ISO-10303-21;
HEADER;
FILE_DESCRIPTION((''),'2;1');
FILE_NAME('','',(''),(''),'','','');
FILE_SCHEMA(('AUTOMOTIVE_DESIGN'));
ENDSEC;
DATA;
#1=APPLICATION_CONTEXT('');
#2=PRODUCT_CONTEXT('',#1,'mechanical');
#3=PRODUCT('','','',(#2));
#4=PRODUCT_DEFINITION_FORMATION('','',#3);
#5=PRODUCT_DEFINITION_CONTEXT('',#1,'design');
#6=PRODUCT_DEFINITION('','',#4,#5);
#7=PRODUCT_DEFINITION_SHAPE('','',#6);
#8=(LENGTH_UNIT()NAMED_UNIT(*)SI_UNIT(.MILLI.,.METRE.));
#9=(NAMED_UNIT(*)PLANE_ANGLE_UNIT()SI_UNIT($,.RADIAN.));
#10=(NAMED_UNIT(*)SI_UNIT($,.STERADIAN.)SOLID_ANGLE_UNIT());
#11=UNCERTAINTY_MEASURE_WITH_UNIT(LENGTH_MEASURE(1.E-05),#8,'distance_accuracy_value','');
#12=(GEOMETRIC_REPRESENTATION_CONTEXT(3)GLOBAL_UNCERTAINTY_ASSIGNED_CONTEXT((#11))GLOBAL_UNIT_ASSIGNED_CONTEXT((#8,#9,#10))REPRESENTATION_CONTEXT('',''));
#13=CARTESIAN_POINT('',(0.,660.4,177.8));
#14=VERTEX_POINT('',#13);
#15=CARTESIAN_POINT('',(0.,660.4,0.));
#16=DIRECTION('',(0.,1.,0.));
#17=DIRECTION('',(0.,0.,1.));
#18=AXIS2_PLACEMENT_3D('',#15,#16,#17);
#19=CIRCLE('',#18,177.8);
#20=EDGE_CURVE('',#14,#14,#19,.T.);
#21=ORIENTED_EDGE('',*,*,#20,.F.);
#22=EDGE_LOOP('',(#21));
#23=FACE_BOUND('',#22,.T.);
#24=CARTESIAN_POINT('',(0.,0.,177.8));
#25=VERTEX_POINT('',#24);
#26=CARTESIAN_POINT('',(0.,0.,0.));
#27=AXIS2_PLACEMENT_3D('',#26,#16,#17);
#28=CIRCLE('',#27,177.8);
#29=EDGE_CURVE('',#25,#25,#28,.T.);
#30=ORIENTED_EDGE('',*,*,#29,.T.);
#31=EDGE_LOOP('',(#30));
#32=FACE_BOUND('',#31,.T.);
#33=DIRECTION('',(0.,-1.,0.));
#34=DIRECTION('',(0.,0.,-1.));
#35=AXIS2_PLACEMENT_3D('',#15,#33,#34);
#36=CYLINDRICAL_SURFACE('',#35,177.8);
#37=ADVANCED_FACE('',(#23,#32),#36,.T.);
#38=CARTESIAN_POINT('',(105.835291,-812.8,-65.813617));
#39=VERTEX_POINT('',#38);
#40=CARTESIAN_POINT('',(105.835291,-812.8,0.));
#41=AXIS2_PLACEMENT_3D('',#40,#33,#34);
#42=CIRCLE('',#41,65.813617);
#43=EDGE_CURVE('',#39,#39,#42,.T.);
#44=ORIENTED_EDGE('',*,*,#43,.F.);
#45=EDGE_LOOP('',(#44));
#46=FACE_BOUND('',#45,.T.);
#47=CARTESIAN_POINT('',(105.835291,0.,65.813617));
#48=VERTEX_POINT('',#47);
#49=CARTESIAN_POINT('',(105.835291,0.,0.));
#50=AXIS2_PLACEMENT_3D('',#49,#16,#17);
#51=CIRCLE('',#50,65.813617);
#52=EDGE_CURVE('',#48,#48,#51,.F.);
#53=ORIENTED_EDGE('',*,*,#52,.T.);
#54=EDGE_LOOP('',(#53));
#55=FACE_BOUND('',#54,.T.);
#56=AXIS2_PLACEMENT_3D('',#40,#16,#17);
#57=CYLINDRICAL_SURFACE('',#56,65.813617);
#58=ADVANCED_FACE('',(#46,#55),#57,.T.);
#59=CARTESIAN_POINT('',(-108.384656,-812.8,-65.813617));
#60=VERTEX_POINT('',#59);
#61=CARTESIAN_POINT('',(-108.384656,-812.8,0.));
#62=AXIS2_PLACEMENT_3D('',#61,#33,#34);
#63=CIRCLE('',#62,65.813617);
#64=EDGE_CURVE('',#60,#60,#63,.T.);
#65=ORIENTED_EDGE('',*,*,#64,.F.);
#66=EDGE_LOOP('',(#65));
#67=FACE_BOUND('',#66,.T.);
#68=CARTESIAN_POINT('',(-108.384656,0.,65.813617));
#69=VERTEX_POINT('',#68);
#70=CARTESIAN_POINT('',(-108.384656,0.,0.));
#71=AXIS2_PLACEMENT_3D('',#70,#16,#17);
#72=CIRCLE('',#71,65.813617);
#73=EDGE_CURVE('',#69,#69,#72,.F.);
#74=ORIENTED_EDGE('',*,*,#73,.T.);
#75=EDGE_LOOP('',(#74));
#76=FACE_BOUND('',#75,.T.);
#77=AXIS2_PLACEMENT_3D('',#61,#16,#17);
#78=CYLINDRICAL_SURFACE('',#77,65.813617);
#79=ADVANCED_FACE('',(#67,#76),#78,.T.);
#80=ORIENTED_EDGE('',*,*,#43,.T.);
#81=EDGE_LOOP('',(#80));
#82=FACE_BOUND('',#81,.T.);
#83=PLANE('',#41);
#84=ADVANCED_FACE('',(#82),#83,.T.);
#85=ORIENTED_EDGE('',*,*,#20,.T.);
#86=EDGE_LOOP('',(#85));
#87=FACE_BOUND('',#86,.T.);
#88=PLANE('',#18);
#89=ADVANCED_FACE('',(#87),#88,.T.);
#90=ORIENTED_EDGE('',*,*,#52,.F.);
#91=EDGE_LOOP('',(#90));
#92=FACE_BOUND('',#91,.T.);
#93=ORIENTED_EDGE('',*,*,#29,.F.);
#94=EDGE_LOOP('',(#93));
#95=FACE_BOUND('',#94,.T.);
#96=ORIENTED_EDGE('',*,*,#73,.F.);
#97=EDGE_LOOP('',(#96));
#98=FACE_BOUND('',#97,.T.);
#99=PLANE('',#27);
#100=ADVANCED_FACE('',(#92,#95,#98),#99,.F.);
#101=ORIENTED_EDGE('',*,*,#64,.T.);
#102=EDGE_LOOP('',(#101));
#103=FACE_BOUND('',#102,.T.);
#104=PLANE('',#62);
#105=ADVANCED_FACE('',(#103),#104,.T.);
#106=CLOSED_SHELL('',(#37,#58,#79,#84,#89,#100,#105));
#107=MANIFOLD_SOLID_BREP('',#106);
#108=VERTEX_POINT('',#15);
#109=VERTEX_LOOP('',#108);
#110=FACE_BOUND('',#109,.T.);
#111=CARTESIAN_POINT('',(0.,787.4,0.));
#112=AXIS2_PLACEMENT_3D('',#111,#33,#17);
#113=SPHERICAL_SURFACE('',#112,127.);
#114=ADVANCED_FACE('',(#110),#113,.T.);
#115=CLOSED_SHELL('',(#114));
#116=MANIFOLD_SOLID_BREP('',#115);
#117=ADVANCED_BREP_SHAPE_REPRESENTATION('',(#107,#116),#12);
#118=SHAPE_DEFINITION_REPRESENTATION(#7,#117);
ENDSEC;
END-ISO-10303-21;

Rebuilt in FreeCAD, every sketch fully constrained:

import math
import FreeCAD as App
import Part
import Sketcher
Q = App.Units.Quantity

doc = App.newDocument("Part")
body = doc.addObject("PartDesign::Body", "Body")

sketch1 = doc.addObject("Sketcher::SketchObject", "Sketch")
body.addObject(sketch1)
sketch1.AttachmentSupport = (doc.XZ_Plane, [""])
sketch1.MapMode = "FlatFace"
sketch1.addGeometry(Part.Circle(App.Vector(0, 0, 0), App.Vector(0, 0, 1), 178), False)
sketch1.addConstraint([
    Sketcher.Constraint("Coincident", 0, 3, -1, 1),
    Sketcher.Constraint("Diameter", 0, Q("14 in")),
])
pad1 = doc.addObject("PartDesign::Pad", "Pad")
body.addObject(pad1)
pad1.Profile = sketch1
pad1.Length = Q("26 in")
pad1.Reversed = True

sketch2 = doc.addObject("Sketcher::SketchObject", "Sketch001")
body.addObject(sketch2)
sketch2.AttachmentSupport = (doc.XZ_Plane, [""])
sketch2.MapMode = "FlatFace"
sketch2.addGeometry([
    Part.Circle(App.Vector(-108, 0, 0), App.Vector(0, 0, 1), 66),
    Part.Circle(App.Vector(106, 0, 0), App.Vector(0, 0, 1), 66),
], False)
sketch2.addConstraint([
    Sketcher.Constraint("Equal", 0, 1),
    Sketcher.Constraint("PointOnObject", 0, 3, -1),
    Sketcher.Constraint("PointOnObject", 1, 3, -1),
    Sketcher.Constraint("Diameter", 0, Q("131.627235 mm")),
    Sketcher.Constraint("DistanceX", -1, 1, 1, 3, Q("105.835291 mm")),
    Sketcher.Constraint("DistanceX", 0, 3, -1, 1, Q("108.384656 mm")),
])
pad2 = doc.addObject("PartDesign::Pad", "Pad001")
body.addObject(pad2)
pad2.Profile = sketch2
pad2.Length = Q("32 in")
body2 = doc.addObject("PartDesign::Body", "Body001")

sketch3 = doc.addObject("Sketcher::SketchObject", "Sketch002")
body2.addObject(sketch3)
sketch3.AttachmentSupport = (doc.getObject("YZ_Plane001"), [""])
sketch3.MapMode = "FlatFace"
sketch3.addGeometry([
    Part.LineSegment(App.Vector(914, 0, 0), App.Vector(660, 0, 0)),
    Part.ArcOfCircle(Part.Circle(App.Vector(787, 0, 0), App.Vector(0, 0, 1), 127), math.radians(180), math.radians(360)),
], False)
sketch3.addConstraint([
    Sketcher.Constraint("Coincident", 0, 1, 1, 2),
    Sketcher.Constraint("Coincident", 1, 1, 0, 2),
    Sketcher.Constraint("Horizontal", 0),
    Sketcher.Constraint("PointOnObject", 1, 3, -1),
    Sketcher.Constraint("PointOnObject", 0, 1, -1),
    Sketcher.Constraint("Radius", 1, Q("5 in")),
    Sketcher.Constraint("DistanceX", -1, 1, 1, 3, Q("31 in")),
])
revolution = doc.addObject("PartDesign::Revolution", "Revolution")
body2.addObject(revolution)
revolution.Profile = sketch3
revolution.ReferenceAxis = (sketch3, ["H_Axis"])
revolution.Angle = 360

doc.recompute()
